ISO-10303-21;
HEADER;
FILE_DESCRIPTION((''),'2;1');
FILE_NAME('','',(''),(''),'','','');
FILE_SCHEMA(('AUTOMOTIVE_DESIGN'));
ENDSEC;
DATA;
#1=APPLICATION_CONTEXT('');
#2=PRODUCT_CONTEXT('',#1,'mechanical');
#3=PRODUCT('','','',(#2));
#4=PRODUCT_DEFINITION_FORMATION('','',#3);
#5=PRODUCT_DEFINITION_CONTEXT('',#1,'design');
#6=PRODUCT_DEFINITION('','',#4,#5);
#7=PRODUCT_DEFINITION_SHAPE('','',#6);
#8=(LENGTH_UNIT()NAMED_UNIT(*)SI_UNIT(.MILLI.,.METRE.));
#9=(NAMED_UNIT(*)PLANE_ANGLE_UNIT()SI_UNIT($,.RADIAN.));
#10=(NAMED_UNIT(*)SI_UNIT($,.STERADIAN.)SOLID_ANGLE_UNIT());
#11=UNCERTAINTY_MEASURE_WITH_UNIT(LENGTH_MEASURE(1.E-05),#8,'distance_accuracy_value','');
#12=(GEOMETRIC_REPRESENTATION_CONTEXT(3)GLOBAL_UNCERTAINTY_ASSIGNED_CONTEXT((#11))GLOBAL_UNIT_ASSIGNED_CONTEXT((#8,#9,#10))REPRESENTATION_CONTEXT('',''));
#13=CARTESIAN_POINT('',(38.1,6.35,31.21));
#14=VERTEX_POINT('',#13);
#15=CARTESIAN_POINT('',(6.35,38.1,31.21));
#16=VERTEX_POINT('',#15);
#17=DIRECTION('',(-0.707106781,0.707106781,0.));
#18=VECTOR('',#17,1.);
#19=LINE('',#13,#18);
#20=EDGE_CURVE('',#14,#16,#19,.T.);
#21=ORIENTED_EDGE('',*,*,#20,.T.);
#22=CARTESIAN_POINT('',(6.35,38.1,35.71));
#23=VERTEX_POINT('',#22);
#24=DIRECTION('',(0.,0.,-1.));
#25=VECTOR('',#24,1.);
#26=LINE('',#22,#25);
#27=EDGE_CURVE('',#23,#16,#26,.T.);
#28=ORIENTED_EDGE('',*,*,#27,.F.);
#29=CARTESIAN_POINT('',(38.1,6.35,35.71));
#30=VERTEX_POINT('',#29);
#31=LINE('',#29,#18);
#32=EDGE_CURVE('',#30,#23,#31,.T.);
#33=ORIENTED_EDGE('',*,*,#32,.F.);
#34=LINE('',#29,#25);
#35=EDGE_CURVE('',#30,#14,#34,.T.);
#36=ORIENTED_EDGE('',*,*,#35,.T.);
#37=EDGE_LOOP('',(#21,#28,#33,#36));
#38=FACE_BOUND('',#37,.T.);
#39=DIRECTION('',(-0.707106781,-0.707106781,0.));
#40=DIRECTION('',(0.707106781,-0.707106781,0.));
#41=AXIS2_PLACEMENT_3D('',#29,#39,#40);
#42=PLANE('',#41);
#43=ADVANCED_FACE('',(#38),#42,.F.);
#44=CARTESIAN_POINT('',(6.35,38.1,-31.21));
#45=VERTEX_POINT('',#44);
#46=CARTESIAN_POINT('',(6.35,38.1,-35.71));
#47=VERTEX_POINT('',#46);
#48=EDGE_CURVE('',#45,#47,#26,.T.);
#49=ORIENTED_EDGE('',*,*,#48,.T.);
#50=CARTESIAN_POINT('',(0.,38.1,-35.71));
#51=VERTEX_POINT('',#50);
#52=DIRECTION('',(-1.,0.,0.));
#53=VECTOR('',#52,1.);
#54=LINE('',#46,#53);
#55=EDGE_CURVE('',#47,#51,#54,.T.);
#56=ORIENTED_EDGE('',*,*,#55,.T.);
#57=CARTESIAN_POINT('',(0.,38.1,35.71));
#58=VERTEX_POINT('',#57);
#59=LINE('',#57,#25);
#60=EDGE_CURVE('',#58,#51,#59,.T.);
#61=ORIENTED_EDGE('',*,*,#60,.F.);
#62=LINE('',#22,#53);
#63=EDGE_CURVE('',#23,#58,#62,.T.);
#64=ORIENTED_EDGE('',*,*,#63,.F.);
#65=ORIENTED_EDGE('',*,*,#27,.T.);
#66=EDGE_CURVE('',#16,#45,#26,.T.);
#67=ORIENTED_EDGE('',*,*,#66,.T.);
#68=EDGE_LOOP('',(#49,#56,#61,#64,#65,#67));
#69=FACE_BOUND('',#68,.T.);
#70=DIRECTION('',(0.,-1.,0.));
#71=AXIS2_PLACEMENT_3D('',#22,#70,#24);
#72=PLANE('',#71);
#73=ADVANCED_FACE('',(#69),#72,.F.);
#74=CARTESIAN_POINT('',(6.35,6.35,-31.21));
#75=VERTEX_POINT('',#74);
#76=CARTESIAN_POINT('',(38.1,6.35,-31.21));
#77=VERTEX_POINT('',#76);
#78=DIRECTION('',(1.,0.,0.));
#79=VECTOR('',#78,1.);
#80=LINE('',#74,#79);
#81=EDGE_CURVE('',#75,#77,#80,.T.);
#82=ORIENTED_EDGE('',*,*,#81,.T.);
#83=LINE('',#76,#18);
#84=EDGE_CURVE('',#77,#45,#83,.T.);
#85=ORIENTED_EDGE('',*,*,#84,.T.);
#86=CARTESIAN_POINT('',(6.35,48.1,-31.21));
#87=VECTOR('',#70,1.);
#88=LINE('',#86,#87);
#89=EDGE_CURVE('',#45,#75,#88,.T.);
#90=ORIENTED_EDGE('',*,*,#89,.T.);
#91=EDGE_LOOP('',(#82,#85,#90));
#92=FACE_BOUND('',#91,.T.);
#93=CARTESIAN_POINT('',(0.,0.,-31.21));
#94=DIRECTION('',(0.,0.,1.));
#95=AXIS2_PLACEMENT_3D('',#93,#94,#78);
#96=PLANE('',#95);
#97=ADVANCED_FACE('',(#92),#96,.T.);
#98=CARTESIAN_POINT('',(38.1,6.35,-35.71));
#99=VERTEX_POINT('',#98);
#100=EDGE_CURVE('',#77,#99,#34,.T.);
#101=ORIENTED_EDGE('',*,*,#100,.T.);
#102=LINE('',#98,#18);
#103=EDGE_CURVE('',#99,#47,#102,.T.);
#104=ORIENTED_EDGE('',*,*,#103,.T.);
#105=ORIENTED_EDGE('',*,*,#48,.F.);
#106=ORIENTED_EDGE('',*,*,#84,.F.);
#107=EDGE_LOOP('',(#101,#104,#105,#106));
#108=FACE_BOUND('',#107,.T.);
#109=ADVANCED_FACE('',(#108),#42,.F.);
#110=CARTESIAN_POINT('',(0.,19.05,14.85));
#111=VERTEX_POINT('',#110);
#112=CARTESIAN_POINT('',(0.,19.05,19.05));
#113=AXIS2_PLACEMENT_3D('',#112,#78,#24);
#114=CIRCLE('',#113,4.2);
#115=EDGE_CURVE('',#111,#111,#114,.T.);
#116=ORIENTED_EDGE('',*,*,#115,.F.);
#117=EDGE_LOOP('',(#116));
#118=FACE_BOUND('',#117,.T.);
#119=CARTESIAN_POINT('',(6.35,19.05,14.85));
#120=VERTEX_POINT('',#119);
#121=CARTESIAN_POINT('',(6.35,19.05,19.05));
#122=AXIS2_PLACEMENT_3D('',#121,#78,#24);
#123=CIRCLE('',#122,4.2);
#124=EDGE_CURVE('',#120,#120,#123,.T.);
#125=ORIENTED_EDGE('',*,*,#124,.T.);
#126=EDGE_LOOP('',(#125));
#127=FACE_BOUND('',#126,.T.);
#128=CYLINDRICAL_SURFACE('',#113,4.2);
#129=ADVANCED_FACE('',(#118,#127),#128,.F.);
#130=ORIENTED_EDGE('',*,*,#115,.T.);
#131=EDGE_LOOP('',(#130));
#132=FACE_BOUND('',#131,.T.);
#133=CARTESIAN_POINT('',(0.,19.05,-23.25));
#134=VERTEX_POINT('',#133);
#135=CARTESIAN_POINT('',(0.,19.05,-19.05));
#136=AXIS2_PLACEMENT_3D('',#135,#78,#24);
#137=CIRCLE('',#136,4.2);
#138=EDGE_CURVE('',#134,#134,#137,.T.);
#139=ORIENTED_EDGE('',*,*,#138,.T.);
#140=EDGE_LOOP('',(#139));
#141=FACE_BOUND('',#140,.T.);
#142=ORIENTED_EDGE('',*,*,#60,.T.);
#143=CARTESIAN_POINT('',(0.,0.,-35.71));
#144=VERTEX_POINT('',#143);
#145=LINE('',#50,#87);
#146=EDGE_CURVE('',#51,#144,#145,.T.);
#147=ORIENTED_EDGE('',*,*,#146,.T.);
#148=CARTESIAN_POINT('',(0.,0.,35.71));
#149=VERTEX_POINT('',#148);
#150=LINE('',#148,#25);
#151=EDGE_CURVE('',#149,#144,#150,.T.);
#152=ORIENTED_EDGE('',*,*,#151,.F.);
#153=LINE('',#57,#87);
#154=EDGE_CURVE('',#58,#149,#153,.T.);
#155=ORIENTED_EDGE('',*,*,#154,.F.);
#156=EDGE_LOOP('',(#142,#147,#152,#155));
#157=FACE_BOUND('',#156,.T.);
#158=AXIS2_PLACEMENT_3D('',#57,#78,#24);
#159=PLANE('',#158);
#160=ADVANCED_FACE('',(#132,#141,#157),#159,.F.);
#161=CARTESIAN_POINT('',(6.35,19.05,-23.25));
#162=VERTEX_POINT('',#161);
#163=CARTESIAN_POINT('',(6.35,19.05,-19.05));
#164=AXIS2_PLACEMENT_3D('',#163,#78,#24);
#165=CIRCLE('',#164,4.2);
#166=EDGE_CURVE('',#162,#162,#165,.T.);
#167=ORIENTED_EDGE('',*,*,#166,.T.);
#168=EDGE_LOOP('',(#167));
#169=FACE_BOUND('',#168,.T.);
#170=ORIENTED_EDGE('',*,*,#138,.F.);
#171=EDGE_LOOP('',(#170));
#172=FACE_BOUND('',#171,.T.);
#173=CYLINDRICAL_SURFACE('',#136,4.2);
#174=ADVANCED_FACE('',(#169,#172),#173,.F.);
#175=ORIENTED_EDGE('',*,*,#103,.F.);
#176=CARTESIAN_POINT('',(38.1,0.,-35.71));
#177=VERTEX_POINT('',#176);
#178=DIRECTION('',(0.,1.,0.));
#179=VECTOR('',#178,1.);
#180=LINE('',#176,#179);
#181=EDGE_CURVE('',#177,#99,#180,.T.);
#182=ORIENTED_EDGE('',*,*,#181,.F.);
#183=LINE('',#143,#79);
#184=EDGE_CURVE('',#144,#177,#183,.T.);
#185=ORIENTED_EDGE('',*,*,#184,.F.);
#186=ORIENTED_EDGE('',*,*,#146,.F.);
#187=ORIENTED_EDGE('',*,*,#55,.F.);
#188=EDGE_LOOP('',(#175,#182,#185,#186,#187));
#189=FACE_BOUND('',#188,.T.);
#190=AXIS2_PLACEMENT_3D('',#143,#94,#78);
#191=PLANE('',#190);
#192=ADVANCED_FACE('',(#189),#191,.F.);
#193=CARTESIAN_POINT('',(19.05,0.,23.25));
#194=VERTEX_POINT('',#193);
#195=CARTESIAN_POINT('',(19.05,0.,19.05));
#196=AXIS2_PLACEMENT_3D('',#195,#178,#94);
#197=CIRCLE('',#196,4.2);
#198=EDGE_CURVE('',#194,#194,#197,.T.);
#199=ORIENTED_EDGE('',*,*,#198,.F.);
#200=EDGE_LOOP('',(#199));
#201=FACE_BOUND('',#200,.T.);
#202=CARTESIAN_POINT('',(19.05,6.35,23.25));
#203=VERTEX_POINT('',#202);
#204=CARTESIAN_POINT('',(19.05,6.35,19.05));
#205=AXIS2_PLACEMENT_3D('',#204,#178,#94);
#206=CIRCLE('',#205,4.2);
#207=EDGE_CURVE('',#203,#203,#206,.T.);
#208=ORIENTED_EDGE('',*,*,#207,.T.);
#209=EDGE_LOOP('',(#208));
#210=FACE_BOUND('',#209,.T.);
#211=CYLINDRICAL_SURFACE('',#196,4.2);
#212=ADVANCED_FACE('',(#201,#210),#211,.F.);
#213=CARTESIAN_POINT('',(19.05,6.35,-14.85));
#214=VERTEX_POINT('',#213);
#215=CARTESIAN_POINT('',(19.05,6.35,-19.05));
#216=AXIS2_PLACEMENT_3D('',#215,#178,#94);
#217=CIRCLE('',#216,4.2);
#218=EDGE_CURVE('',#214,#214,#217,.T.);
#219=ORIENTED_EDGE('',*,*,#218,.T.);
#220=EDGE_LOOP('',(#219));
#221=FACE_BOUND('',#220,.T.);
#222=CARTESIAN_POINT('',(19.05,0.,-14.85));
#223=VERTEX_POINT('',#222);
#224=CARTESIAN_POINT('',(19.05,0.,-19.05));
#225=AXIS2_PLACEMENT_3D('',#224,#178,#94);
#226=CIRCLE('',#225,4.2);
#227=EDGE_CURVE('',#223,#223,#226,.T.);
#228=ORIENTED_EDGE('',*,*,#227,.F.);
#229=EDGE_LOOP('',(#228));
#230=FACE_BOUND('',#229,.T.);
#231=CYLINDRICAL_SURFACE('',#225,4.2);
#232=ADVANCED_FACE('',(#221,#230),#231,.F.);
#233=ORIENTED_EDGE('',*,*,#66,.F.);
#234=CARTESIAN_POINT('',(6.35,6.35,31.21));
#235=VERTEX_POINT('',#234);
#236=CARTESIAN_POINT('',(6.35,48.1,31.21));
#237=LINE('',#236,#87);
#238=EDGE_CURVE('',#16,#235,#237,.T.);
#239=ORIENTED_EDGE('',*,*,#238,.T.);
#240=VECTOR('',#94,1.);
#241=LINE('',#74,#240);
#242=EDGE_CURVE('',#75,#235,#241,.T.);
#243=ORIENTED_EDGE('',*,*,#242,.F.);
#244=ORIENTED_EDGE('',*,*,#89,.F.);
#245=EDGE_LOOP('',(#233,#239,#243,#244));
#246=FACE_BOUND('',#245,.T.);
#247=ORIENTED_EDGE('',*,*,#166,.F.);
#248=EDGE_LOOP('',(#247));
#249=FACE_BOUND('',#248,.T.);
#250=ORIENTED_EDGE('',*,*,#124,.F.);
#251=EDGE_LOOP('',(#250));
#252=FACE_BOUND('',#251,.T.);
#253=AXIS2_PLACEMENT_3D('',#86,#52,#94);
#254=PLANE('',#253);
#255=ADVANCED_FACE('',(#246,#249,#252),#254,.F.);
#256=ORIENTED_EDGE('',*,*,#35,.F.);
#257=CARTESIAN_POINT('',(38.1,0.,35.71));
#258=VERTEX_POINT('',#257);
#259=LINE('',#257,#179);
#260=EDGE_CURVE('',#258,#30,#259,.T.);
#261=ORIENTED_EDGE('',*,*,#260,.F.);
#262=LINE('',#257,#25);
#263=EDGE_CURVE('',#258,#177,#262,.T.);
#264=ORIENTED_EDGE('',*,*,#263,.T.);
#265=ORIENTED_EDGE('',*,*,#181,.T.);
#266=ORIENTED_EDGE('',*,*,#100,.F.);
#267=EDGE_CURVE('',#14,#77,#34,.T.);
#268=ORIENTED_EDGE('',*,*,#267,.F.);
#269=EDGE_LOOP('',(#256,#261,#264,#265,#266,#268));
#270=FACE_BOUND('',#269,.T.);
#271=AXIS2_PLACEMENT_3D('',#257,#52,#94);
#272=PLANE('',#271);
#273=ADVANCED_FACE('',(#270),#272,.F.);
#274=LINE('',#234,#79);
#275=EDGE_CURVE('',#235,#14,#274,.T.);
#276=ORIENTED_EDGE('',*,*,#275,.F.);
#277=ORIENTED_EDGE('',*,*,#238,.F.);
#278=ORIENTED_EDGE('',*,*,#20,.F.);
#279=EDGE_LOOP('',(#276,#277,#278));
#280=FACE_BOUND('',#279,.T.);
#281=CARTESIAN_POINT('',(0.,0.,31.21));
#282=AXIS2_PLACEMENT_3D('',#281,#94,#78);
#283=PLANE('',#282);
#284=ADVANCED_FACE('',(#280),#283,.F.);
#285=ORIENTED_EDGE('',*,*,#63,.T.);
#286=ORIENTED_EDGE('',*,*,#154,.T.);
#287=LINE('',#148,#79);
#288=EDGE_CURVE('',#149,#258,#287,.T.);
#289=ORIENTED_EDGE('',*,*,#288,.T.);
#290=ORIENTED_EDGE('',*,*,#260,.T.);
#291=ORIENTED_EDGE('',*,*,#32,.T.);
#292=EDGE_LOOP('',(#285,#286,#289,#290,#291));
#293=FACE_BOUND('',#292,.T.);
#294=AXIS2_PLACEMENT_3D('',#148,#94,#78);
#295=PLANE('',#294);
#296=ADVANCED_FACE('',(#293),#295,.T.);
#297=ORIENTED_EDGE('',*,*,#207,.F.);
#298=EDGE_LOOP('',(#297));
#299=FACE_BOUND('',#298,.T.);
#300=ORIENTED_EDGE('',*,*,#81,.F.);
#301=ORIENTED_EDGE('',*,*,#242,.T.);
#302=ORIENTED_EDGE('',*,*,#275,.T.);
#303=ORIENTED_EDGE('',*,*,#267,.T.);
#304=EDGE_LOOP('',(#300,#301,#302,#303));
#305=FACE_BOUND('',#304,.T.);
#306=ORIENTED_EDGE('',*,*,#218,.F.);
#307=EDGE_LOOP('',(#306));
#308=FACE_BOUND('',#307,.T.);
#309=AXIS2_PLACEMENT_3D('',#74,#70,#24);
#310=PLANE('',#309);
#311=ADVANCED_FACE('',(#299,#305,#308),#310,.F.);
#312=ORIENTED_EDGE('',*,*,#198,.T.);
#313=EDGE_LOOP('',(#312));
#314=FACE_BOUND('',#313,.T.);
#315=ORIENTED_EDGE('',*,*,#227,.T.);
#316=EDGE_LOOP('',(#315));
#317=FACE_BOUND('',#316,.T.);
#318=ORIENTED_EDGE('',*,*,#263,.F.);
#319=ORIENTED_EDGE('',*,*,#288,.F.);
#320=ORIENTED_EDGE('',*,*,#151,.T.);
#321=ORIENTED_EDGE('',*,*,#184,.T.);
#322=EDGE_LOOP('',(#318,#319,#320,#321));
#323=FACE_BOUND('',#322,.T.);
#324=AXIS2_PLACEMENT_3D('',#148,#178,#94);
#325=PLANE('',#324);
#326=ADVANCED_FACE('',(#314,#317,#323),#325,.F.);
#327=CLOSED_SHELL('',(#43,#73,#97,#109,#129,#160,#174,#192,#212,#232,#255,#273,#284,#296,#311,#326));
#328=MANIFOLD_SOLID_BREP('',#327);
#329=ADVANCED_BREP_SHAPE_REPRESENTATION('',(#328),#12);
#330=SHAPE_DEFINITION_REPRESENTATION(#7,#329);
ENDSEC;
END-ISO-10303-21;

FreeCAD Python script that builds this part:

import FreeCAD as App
import Part
import Sketcher
Q = App.Units.Quantity

doc = App.newDocument("Part")
body = doc.addObject("PartDesign::Body", "Body")

sketch1 = body.newObject("Sketcher::SketchObject", "Sketch")
sketch1.AttachmentSupport = (doc.getObject("XY_Plane"), [""])
sketch1.MapMode = "FlatFace"
sketch1.AttachmentOffset = App.Placement(App.Vector(0, 0, -35.71), App.Rotation())
sketch1.addGeometry([
    Part.LineSegment(App.Vector(0, 0, 0), App.Vector(38, 0, 0)),
    Part.LineSegment(App.Vector(38, 0, 0), App.Vector(38, 6, 0)),
    Part.LineSegment(App.Vector(38, 6, 0), App.Vector(6, 38, 0)),
    Part.LineSegment(App.Vector(6, 38, 0), App.Vector(0, 38, 0)),
    Part.LineSegment(App.Vector(0, 38, 0), App.Vector(0, 0, 0)),
], False)
sketch1.addConstraint([
    Sketcher.Constraint("Coincident", 0, 2, 1, 1),
    Sketcher.Constraint("Coincident", 1, 2, 2, 1),
    Sketcher.Constraint("Coincident", 2, 2, 3, 1),
    Sketcher.Constraint("Coincident", 3, 2, 4, 1),
    Sketcher.Constraint("Coincident", 4, 2, 0, 1),
    Sketcher.Constraint("Horizontal", 0),
    Sketcher.Constraint("Vertical", 1),
    Sketcher.Constraint("Horizontal", 3),
    Sketcher.Constraint("Vertical", 4),
    Sketcher.Constraint("Coincident", 4, 2, -1, 1),
    Sketcher.Constraint("Equal", 3, 1),
    Sketcher.Constraint("Equal", 0, 4),
    Sketcher.Constraint("DistanceX", 0, 1, 0, 2, Q("1.5 in")),
    Sketcher.Constraint("DistanceX", 3, 2, 3, 1, Q("0.25 in")),
])
pad1 = body.newObject("PartDesign::Pad", "Pad")
pad1.Profile = sketch1
pad1.Length = 71.42

sketch2 = body.newObject("Sketcher::SketchObject", "Sketch001")
sketch2.AttachmentSupport = (doc.getObject("XY_Plane"), [""])
sketch2.MapMode = "FlatFace"
sketch2.AttachmentOffset = App.Placement(App.Vector(0, 0, 31.21), App.Rotation())
sketch2.addGeometry([
    Part.LineSegment(App.Vector(6, 6, 0), App.Vector(48, 6, 0)),
    Part.LineSegment(App.Vector(48, 6, 0), App.Vector(6, 48, 0)),
    Part.LineSegment(App.Vector(6, 48, 0), App.Vector(6, 6, 0)),
], False)
sketch2.addConstraint([
    Sketcher.Constraint("Coincident", 0, 2, 1, 1),
    Sketcher.Constraint("Coincident", 1, 2, 2, 1),
    Sketcher.Constraint("Coincident", 2, 2, 0, 1),
    Sketcher.Constraint("Horizontal", 0),
    Sketcher.Constraint("Vertical", 2),
    Sketcher.Constraint("Equal", 0, 2),
    Sketcher.Constraint("DistanceY", -1, 1, 0, 2, Q("0.25 in")),
    Sketcher.Constraint("DistanceX", -1, 1, 1, 2, Q("0.25 in")),
    Sketcher.Constraint("DistanceX", 0, 1, 0, 2, Q("41.75 mm")),
])
pocket1 = body.newObject("PartDesign::Pocket", "Pocket")
pocket1.Profile = sketch2
pocket1.Length = 62.42

sketch3 = body.newObject("Sketcher::SketchObject", "Sketch002")
sketch3.AttachmentSupport = (doc.getObject("XZ_Plane"), [""])
sketch3.MapMode = "FlatFace"
sketch3.AttachmentOffset = App.Placement(App.Vector(0, 0, -0.25 * 25.4), App.Rotation())
sketch3.addGeometry([
    Part.Circle(App.Vector(19.1, -19.1, 0), App.Vector(0, 0, 1), 4.2),
    Part.Circle(App.Vector(19.1, 19.1, 0), App.Vector(0, 0, 1), 4.2),
], False)
sketch3.addConstraint([
    Sketcher.Constraint("Equal", 0, 1),
    Sketcher.Constraint("Symmetric", 0, 3, 1, 3, -1),
    Sketcher.Constraint("DistanceY", 0, 3, 1, 3, Q("1.5 in")),
    Sketcher.Constraint("Diameter", 0, Q("8.4 mm")),
    Sketcher.Constraint("DistanceX", -1, 1, 0, 3, Q("0.75 in")),
])
pocket2 = body.newObject("PartDesign::Pocket", "Pocket001")
pocket2.Profile = sketch3
pocket2.Length = Q("0.25 in")
pocket2.Reversed = True

sketch4 = body.newObject("Sketcher::SketchObject", "Sketch003")
sketch4.AttachmentSupport = (doc.getObject("YZ_Plane"), [""])
sketch4.MapMode = "FlatFace"
sketch4.AttachmentOffset = App.Placement(App.Vector(0, 0, 0.25 * 25.4), App.Rotation())
sketch4.addGeometry([
    Part.Circle(App.Vector(19.1, -19.1, 0), App.Vector(0, 0, 1), 4.2),
    Part.Circle(App.Vector(19.1, 19.1, 0), App.Vector(0, 0, 1), 4.2),
], False)
sketch4.addConstraint([
    Sketcher.Constraint("Equal", 0, 1),
    Sketcher.Constraint("Symmetric", 0, 3, 1, 3, -1),
    Sketcher.Constraint("DistanceY", 0, 3, 1, 3, Q("1.5 in")),
    Sketcher.Constraint("Diameter", 0, Q("8.4 mm")),
    Sketcher.Constraint("DistanceX", -1, 1, 0, 3, Q("0.75 in")),
])
pocket3 = body.newObject("PartDesign::Pocket", "Pocket002")
pocket3.Profile = sketch4
pocket3.Length = Q("0.25 in")

doc.recompute()
